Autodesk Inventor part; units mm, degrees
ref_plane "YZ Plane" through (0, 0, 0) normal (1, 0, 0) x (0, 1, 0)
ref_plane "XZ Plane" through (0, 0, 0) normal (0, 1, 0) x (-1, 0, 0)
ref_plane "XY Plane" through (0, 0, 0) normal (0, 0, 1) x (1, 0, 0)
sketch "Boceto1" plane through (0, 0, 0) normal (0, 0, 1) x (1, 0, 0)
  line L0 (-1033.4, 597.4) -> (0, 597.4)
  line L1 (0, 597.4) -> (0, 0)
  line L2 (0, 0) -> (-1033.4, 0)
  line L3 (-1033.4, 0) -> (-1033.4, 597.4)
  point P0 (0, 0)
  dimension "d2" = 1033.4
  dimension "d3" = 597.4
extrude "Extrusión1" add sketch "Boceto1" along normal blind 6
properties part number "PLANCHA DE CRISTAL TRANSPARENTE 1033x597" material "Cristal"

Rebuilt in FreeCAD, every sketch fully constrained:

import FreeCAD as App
import Part
import Sketcher

V = App.Vector
Q = App.Units.Quantity

doc = App.newDocument("Part")
params = doc.addObject("Spreadsheet::Sheet", "Params")
for row, (alias, value) in enumerate([
    ("sketch1_width", "1033.4 mm"),
    ("sketch1_height", "597.4 mm"),
    ("pad1_length", "6 mm"),
], start=1):
    params.set(f"A{row}", alias)
    params.set(f"B{row}", "=" + value)
    params.setAlias(f"B{row}", alias)

body = doc.addObject("PartDesign::Body", "Body")

sketch1 = body.newObject("Sketcher::SketchObject", "Sketch")
sketch1.AttachmentSupport = (doc.getObject("XY_Plane"), [""])
sketch1.MapMode = "FlatFace"
sketch1.addGeometry([
    Part.LineSegment(V(0, 597, 0), V(-1033, 597, 0)),
    Part.LineSegment(V(-1033, 597, 0), V(-1033, 0, 0)),
    Part.LineSegment(V(-1033, 0, 0), V(0, 0, 0)),
    Part.LineSegment(V(0, 0, 0), V(0, 597, 0)),
], False)
sketch1.addConstraint([
    Sketcher.Constraint("Coincident", 0, 2, 1, 1),
    Sketcher.Constraint("Coincident", 1, 2, 2, 1),
    Sketcher.Constraint("Coincident", 2, 2, 3, 1),
    Sketcher.Constraint("Coincident", 3, 2, 0, 1),
    Sketcher.Constraint("Horizontal", 0),
    Sketcher.Constraint("Vertical", 1),
    Sketcher.Constraint("Horizontal", 2),
    Sketcher.Constraint("Vertical", 3),
    Sketcher.Constraint("Coincident", 2, 2, -1, 1),
    Sketcher.Constraint("DistanceX", 0, 2, 0, 1, Q("1033.4 mm")),
    Sketcher.Constraint("DistanceY", 1, 2, 1, 1, Q("597.4 mm")),
])
sketch1.setExpression("Constraints[9]", "Params.sketch1_width")
sketch1.setExpression("Constraints[10]", "Params.sketch1_height")
pad1 = body.newObject("PartDesign::Pad", "Pad")
pad1.Profile = sketch1
pad1.setExpression("Length", "Params.pad1_length")

doc.recompute()
